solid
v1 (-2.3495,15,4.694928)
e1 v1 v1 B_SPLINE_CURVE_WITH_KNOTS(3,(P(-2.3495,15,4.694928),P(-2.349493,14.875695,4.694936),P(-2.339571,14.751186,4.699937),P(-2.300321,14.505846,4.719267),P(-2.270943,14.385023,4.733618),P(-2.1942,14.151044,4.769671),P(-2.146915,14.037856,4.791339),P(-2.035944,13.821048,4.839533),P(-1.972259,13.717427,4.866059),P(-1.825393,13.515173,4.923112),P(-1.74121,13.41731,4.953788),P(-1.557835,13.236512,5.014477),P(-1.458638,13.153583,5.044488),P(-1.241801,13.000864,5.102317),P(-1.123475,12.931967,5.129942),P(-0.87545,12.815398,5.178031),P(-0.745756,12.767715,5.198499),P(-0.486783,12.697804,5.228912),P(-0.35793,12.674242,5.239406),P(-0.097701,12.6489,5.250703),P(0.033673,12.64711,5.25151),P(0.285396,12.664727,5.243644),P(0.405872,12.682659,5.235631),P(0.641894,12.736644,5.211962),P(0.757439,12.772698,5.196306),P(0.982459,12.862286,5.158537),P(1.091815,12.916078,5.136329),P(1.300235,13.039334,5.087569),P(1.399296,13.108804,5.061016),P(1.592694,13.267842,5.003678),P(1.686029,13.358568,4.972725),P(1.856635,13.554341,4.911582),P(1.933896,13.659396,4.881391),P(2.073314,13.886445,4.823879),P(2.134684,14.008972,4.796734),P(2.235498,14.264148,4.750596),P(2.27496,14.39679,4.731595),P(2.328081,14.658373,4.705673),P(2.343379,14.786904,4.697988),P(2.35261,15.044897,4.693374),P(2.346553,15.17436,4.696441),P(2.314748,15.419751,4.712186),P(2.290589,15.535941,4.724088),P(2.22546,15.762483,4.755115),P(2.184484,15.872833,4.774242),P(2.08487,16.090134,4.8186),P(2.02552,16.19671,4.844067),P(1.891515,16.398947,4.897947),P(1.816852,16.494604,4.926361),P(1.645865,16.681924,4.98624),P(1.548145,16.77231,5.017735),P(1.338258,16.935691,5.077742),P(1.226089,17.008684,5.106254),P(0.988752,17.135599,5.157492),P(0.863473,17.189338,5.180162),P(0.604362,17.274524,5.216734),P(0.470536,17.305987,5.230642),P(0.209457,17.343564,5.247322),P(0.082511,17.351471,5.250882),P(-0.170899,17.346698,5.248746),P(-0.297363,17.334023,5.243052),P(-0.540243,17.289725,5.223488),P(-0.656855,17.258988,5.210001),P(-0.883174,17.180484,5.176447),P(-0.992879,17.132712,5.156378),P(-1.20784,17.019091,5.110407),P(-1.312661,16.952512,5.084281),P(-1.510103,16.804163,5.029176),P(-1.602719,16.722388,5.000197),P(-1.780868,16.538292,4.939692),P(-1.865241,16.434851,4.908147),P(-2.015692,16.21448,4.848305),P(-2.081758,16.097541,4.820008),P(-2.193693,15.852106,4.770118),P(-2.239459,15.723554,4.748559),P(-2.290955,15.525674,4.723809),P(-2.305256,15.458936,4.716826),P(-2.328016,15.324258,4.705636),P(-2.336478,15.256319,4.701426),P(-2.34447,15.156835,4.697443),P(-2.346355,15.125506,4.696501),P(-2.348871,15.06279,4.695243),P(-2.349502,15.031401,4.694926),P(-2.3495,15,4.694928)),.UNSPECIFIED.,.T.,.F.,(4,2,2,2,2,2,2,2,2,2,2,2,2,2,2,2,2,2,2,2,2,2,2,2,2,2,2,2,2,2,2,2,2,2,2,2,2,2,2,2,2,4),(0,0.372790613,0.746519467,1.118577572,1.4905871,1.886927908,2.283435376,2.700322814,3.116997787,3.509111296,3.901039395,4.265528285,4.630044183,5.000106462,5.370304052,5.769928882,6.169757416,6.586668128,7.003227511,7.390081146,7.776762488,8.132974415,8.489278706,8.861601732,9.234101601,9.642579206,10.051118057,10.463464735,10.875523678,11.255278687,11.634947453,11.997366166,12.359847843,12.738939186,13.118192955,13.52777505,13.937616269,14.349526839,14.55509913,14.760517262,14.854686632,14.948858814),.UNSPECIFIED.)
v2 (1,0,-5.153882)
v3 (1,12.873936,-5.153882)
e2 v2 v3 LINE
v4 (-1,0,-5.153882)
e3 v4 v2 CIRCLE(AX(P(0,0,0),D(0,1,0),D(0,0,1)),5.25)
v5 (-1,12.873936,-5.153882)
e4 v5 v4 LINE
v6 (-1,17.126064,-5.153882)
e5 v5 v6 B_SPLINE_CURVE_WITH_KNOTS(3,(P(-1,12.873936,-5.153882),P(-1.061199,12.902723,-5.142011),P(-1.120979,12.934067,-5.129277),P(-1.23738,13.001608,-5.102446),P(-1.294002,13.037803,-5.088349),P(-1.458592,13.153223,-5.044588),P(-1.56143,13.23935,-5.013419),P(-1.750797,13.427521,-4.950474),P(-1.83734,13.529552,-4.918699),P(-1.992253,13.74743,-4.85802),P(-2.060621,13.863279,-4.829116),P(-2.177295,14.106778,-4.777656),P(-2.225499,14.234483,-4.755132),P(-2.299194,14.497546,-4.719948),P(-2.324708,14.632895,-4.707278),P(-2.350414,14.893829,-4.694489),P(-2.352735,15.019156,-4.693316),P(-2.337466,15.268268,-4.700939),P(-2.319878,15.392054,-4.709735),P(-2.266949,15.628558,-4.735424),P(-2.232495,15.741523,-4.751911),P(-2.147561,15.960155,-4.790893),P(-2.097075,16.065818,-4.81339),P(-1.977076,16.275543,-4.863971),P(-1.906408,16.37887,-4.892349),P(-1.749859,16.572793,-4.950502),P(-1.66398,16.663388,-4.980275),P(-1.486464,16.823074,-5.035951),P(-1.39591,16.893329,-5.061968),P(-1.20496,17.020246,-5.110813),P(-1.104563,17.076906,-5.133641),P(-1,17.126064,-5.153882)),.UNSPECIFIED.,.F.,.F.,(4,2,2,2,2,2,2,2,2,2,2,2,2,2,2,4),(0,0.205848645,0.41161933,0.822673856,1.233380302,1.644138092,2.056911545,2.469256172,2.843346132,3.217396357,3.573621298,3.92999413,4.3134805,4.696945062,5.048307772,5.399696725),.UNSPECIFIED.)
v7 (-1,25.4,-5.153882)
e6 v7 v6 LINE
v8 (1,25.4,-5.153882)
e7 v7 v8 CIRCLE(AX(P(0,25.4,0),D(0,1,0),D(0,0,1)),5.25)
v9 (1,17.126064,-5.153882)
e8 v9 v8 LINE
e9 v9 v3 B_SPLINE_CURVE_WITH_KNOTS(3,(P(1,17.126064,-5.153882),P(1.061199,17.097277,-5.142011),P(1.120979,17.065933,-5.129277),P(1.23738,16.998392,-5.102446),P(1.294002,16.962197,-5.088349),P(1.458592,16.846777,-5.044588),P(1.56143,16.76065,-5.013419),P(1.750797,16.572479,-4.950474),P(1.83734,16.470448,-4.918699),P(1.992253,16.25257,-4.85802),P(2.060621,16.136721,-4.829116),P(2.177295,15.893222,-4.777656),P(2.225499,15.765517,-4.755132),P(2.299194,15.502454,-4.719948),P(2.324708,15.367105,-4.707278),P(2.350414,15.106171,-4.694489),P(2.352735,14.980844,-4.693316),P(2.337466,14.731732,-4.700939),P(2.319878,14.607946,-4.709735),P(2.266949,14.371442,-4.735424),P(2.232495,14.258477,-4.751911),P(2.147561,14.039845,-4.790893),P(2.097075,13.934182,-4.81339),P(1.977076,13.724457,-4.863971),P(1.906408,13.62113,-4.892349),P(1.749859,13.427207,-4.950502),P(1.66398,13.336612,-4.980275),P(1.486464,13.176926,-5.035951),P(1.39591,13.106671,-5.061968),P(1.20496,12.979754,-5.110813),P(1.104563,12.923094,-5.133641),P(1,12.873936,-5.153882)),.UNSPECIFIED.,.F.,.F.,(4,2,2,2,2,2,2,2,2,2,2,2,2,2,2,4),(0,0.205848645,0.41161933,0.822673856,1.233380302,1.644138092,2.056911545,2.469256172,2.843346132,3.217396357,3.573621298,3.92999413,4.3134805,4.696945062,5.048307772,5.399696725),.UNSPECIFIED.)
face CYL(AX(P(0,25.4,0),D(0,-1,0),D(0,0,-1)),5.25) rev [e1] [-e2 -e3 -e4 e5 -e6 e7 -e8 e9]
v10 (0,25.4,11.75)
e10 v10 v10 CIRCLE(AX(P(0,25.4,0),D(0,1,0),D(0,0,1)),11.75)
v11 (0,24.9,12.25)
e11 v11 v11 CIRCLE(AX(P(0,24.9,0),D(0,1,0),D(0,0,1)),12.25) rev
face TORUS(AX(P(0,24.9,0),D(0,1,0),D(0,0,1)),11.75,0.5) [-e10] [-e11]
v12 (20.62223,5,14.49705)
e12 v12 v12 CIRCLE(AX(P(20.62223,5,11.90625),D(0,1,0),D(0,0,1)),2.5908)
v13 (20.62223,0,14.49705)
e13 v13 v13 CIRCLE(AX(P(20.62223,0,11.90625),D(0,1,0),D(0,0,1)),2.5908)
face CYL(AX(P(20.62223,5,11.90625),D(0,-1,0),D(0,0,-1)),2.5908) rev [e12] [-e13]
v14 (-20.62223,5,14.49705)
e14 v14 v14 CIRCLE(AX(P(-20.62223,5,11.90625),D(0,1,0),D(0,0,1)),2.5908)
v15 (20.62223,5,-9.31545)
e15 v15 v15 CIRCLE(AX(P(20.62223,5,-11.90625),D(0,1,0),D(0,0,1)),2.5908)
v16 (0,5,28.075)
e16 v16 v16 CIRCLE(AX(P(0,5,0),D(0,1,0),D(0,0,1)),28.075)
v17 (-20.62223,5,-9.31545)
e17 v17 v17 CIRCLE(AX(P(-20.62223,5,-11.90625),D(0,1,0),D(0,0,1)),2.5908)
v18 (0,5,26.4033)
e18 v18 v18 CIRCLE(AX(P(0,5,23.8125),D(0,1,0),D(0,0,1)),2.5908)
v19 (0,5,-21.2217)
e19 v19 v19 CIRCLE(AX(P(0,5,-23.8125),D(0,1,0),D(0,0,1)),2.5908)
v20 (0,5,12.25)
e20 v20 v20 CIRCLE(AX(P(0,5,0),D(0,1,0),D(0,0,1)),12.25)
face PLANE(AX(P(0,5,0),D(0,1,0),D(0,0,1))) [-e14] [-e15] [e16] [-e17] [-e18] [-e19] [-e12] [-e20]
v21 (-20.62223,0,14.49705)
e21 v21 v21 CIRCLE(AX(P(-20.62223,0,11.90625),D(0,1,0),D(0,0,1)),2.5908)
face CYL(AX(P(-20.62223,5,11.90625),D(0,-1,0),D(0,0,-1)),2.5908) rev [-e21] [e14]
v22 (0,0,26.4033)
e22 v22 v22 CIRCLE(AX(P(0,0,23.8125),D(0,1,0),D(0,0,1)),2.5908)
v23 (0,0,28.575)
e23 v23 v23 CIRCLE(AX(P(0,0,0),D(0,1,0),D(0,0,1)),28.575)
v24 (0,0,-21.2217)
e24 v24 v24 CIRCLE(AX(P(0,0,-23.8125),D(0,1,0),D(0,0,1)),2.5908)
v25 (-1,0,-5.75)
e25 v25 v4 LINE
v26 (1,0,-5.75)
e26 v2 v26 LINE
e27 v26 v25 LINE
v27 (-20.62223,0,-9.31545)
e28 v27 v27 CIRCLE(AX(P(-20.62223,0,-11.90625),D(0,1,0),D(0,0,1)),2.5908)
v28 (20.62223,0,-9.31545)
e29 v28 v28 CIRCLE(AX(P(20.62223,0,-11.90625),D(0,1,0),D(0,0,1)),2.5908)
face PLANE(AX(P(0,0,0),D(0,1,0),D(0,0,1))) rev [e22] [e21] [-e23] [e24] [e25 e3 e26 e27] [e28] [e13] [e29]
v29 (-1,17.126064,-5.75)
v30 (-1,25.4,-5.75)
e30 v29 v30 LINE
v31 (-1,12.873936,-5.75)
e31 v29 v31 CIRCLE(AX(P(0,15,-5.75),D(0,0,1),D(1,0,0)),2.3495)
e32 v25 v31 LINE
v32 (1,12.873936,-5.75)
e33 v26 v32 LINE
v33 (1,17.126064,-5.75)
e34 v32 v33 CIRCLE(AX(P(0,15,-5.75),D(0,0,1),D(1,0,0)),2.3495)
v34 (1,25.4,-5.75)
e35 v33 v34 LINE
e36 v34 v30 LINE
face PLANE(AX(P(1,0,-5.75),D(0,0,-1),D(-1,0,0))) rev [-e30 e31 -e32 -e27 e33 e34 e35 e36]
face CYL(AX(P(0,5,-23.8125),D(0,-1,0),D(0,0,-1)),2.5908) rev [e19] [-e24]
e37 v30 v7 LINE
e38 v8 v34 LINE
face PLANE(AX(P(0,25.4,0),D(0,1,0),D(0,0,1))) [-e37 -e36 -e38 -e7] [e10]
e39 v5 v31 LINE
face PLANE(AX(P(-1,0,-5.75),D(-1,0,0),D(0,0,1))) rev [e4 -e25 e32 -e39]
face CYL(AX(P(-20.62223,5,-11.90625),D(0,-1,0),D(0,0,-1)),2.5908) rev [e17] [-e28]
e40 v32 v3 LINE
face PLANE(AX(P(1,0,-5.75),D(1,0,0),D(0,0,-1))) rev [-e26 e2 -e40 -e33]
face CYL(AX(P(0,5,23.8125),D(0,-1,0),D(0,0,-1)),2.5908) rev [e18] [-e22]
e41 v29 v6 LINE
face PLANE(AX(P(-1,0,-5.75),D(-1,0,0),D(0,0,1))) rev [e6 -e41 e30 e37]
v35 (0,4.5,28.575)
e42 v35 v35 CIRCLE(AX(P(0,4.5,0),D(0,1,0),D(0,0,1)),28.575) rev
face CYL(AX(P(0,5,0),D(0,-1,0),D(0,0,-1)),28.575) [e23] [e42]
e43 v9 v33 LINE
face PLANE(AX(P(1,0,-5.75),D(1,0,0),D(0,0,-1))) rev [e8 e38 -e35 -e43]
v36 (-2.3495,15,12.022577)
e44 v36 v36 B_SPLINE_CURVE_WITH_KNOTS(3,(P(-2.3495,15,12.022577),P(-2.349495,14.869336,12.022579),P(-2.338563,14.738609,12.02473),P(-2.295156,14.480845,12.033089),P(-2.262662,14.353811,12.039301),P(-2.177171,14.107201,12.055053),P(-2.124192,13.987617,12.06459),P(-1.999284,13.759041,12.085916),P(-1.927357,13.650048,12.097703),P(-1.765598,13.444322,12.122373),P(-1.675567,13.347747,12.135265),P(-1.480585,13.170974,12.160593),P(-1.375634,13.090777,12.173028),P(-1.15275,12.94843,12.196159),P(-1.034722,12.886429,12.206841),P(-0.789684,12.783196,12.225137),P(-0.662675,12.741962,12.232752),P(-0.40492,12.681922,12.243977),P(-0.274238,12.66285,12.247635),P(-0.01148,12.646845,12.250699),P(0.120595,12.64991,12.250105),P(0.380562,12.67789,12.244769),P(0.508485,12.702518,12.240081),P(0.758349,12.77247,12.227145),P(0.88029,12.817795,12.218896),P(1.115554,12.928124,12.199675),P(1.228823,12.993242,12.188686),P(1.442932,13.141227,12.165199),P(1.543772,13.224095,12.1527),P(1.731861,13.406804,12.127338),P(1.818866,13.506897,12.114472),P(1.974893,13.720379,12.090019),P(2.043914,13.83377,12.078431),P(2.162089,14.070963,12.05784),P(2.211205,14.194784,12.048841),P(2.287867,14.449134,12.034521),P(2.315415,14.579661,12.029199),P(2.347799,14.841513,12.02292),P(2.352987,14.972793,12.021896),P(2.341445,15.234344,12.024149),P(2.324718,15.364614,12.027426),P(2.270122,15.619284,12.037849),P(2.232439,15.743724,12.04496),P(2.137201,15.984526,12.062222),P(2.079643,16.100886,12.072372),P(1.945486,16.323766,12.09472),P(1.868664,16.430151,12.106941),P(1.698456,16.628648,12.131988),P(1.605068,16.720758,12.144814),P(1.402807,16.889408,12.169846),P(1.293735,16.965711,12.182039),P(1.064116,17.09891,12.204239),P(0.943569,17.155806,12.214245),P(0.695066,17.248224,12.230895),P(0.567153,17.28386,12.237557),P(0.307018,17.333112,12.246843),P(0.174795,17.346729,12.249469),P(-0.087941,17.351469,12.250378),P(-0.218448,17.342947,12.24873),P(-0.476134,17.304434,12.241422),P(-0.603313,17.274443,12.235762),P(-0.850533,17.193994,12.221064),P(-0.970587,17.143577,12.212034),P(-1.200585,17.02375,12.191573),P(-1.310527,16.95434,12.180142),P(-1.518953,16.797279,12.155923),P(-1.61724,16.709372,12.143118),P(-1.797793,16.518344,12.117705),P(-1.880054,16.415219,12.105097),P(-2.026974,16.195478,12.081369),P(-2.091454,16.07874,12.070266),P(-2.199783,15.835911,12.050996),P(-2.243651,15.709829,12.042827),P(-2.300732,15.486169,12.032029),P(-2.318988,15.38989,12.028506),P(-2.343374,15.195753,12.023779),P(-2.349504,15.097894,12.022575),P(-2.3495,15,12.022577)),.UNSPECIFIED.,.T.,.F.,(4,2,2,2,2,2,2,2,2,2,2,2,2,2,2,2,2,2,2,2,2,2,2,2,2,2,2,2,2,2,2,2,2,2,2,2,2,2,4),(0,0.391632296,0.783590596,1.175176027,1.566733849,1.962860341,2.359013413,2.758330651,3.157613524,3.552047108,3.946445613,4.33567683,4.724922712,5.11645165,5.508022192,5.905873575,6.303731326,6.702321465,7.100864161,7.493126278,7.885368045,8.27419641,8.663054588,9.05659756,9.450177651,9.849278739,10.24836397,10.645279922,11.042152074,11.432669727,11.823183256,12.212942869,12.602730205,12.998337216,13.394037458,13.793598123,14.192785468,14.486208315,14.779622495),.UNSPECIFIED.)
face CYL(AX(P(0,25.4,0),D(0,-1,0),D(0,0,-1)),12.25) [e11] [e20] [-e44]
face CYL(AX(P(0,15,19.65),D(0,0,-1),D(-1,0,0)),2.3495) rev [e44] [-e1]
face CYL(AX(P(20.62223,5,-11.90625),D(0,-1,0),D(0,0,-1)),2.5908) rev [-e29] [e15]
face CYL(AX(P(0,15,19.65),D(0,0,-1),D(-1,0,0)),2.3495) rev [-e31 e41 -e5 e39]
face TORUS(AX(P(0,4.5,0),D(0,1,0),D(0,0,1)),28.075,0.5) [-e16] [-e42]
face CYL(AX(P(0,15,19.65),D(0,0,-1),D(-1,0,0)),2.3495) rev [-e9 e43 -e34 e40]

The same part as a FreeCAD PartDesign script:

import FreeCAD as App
import Part
import Sketcher
Q = App.Units.Quantity


def edges_at(feature, points):
    """Names of the edges that pass closest to the given points."""
    edges = feature.Shape.Edges
    near = lambda p: min(range(len(edges)), key=lambda i: edges[i].distToShape(Part.Vertex(*p))[0])
    return sorted({f"Edge{near(p) + 1}" for p in points})


def add_polygon(sketch, points):
    """Adds a closed chain of lines whose ends are joined by coincident constraints."""
    first, n = sketch.GeometryCount, len(points)
    for a, b in zip(points, points[1:] + points[:1]):
        sketch.addGeometry(Part.LineSegment(App.Vector(*a, 0), App.Vector(*b, 0)), False)
    for i in range(n):
        sketch.addConstraint(Sketcher.Constraint("Coincident", first + i, 2, first + (i + 1) % n, 1))

doc = App.newDocument("Part")
body = doc.addObject("PartDesign::Body", "Body")

sketch1 = body.newObject("Sketcher::SketchObject", "Sketch")
sketch1.AttachmentSupport = (doc.getObject("XZ_Plane"), [""])
sketch1.MapMode = "FlatFace"
sketch1.addGeometry(Part.Circle(App.Vector(0, 0, 0), App.Vector(0, 0, 1), 28.6), False)
sketch1.addGeometry(Part.Circle(App.Vector(-20.6, -11.9, 0), App.Vector(0, 0, 1), 2.6), False)
sketch1.addGeometry(Part.Circle(App.Vector(0, -23.8, 0), App.Vector(0, 0, 1), 2.6), False)
sketch1.addGeometry(Part.Circle(App.Vector(-20.6, 11.9, 0), App.Vector(0, 0, 1), 2.6), False)
sketch1.addGeometry(Part.Circle(App.Vector(20.6, -11.9, 0), App.Vector(0, 0, 1), 2.6), False)
sketch1.addGeometry(Part.Circle(App.Vector(0, 0, 0), App.Vector(0, 0, 1), 12.2), False)
sketch1.addGeometry(Part.Circle(App.Vector(0, 23.8, 0), App.Vector(0, 0, 1), 2.6), False)
sketch1.addGeometry(Part.Circle(App.Vector(20.6, 11.9, 0), App.Vector(0, 0, 1), 2.6), False)
sketch1.addConstraint(Sketcher.Constraint("Coincident", 0, 3, -1, 1))
sketch1.addConstraint(Sketcher.Constraint("Coincident", 5, 3, -1, 1))
sketch1.addConstraint(Sketcher.Constraint("Equal", 1, 2))
sketch1.addConstraint(Sketcher.Constraint("Equal", 2, 3))
sketch1.addConstraint(Sketcher.Constraint("Equal", 3, 4))
sketch1.addConstraint(Sketcher.Constraint("Equal", 4, 6))
sketch1.addConstraint(Sketcher.Constraint("Equal", 6, 7))
sketch1.addConstraint(Sketcher.Constraint("Symmetric", 3, 3, 4, 3, -1, 1))
sketch1.addConstraint(Sketcher.Constraint("Symmetric", 2, 3, 6, 3, -1, 1))
sketch1.addConstraint(Sketcher.Constraint("Symmetric", 1, 3, 7, 3, -1, 1))
sketch1.addConstraint(Sketcher.Constraint("Symmetric", 1, 3, 4, 3, -2))
sketch1.addConstraint(Sketcher.Constraint("PointOnObject", 2, 3, -2))
sketch1.addConstraint(Sketcher.Constraint("Diameter", 5, Q("24.5 mm")))
sketch1.addConstraint(Sketcher.Constraint("Diameter", 0, Q("57.15 mm")))
sketch1.addConstraint(Sketcher.Constraint("Diameter", 1, Q("5.1816 mm")))
sketch1.addConstraint(Sketcher.Constraint("DistanceY", 2, 3, -1, 1, Q("23.8125 mm")))
sketch1.addConstraint(Sketcher.Constraint("DistanceY", 1, 3, 3, 3, Q("23.8125 mm")))
sketch1.addConstraint(Sketcher.Constraint("DistanceX", 1, 3, -1, 1, Q("20.62223 mm")))
pad1 = body.newObject("PartDesign::Pad", "Pad")
pad1.Profile = sketch1
pad1.Length = 5
pad1.Reversed = True

sketch2 = body.newObject("Sketcher::SketchObject", "Sketch001")
sketch2.AttachmentSupport = (doc.getObject("XZ_Plane"), [""])
sketch2.MapMode = "FlatFace"
sketch2.addGeometry(Part.Circle(App.Vector(0, 0, 0), App.Vector(0, 0, 1), 12), False)
sketch2.addGeometry(Part.Circle(App.Vector(0, 0, 0), App.Vector(0, 0, 1), 5), False)
sketch2.addConstraint(Sketcher.Constraint("Coincident", 0, 3, -1, 1))
sketch2.addConstraint(Sketcher.Constraint("Coincident", 1, 3, -1, 1))
sketch2.addConstraint(Sketcher.Constraint("Diameter", 0, Q("24.5 mm")))
sketch2.addConstraint(Sketcher.Constraint("Diameter", 1, Q("10.5 mm")))
pad2 = body.newObject("PartDesign::Pad", "Pad001")
pad2.Profile = sketch2
pad2.Length = 25.4
pad2.Reversed = True
doc.recompute()

fillet = body.newObject("PartDesign::Fillet", "Fillet")
fillet.Base = (pad2, edges_at(pad2, [(0, 25.4, -12.25), (0, 5, -28.575)]))
fillet.Radius = 0.5

sketch3 = body.newObject("Sketcher::SketchObject", "Sketch002")
sketch3.AttachmentSupport = (doc.getObject("XZ_Plane"), [""])
sketch3.MapMode = "FlatFace"
sketch3.AttachmentOffset = App.Placement(App.Vector(0, 0, -25.4), App.Rotation())
add_polygon(sketch3, [(-1, -5.8), (-1, -4.8), (1, -4.8), (1, -5.8)])
sketch3.addConstraint(Sketcher.Constraint("Vertical", 0))
sketch3.addConstraint(Sketcher.Constraint("Horizontal", 1))
sketch3.addConstraint(Sketcher.Constraint("Vertical", 2))
sketch3.addConstraint(Sketcher.Constraint("Horizontal", 3))
sketch3.addConstraint(Sketcher.Constraint("DistanceX", 1, 1, 1, 2, Q("2 mm")))
sketch3.addConstraint(Sketcher.Constraint("DistanceY", 0, 1, 0, 2, Q("1 mm")))
sketch3.addConstraint(Sketcher.Constraint("DistanceX", 0, 2, -1, 1, Q("1 mm")))
sketch3.addConstraint(Sketcher.Constraint("DistanceY", 0, 2, -1, 1, Q("4.75 mm")))
pocket1 = body.newObject("PartDesign::Pocket", "Pocket")
pocket1.Profile = sketch3
pocket1.Type = "ThroughAll"
pocket1.Reversed = True

sketch4 = body.newObject("Sketcher::SketchObject", "Sketch003")
sketch4.AttachmentSupport = (doc.getObject("XY_Plane"), [""])
sketch4.MapMode = "FlatFace"
sketch4.AttachmentOffset = App.Placement(App.Vector(0, 0, -5.75), App.Rotation())
sketch4.addGeometry(Part.Circle(App.Vector(0, 15, 0), App.Vector(0, 0, 1), 2.3), False)
sketch4.addConstraint(Sketcher.Constraint("PointOnObject", 0, 3, -2))
sketch4.addConstraint(Sketcher.Constraint("Diameter", 0, Q("4.699 mm")))
sketch4.addConstraint(Sketcher.Constraint("DistanceY", -1, 1, 0, 3, Q("15 mm")))
pocket2 = body.newObject("PartDesign::Pocket", "Pocket001")
pocket2.Profile = sketch4
pocket2.Length = 25.4
pocket2.Reversed = True

doc.recompute()
